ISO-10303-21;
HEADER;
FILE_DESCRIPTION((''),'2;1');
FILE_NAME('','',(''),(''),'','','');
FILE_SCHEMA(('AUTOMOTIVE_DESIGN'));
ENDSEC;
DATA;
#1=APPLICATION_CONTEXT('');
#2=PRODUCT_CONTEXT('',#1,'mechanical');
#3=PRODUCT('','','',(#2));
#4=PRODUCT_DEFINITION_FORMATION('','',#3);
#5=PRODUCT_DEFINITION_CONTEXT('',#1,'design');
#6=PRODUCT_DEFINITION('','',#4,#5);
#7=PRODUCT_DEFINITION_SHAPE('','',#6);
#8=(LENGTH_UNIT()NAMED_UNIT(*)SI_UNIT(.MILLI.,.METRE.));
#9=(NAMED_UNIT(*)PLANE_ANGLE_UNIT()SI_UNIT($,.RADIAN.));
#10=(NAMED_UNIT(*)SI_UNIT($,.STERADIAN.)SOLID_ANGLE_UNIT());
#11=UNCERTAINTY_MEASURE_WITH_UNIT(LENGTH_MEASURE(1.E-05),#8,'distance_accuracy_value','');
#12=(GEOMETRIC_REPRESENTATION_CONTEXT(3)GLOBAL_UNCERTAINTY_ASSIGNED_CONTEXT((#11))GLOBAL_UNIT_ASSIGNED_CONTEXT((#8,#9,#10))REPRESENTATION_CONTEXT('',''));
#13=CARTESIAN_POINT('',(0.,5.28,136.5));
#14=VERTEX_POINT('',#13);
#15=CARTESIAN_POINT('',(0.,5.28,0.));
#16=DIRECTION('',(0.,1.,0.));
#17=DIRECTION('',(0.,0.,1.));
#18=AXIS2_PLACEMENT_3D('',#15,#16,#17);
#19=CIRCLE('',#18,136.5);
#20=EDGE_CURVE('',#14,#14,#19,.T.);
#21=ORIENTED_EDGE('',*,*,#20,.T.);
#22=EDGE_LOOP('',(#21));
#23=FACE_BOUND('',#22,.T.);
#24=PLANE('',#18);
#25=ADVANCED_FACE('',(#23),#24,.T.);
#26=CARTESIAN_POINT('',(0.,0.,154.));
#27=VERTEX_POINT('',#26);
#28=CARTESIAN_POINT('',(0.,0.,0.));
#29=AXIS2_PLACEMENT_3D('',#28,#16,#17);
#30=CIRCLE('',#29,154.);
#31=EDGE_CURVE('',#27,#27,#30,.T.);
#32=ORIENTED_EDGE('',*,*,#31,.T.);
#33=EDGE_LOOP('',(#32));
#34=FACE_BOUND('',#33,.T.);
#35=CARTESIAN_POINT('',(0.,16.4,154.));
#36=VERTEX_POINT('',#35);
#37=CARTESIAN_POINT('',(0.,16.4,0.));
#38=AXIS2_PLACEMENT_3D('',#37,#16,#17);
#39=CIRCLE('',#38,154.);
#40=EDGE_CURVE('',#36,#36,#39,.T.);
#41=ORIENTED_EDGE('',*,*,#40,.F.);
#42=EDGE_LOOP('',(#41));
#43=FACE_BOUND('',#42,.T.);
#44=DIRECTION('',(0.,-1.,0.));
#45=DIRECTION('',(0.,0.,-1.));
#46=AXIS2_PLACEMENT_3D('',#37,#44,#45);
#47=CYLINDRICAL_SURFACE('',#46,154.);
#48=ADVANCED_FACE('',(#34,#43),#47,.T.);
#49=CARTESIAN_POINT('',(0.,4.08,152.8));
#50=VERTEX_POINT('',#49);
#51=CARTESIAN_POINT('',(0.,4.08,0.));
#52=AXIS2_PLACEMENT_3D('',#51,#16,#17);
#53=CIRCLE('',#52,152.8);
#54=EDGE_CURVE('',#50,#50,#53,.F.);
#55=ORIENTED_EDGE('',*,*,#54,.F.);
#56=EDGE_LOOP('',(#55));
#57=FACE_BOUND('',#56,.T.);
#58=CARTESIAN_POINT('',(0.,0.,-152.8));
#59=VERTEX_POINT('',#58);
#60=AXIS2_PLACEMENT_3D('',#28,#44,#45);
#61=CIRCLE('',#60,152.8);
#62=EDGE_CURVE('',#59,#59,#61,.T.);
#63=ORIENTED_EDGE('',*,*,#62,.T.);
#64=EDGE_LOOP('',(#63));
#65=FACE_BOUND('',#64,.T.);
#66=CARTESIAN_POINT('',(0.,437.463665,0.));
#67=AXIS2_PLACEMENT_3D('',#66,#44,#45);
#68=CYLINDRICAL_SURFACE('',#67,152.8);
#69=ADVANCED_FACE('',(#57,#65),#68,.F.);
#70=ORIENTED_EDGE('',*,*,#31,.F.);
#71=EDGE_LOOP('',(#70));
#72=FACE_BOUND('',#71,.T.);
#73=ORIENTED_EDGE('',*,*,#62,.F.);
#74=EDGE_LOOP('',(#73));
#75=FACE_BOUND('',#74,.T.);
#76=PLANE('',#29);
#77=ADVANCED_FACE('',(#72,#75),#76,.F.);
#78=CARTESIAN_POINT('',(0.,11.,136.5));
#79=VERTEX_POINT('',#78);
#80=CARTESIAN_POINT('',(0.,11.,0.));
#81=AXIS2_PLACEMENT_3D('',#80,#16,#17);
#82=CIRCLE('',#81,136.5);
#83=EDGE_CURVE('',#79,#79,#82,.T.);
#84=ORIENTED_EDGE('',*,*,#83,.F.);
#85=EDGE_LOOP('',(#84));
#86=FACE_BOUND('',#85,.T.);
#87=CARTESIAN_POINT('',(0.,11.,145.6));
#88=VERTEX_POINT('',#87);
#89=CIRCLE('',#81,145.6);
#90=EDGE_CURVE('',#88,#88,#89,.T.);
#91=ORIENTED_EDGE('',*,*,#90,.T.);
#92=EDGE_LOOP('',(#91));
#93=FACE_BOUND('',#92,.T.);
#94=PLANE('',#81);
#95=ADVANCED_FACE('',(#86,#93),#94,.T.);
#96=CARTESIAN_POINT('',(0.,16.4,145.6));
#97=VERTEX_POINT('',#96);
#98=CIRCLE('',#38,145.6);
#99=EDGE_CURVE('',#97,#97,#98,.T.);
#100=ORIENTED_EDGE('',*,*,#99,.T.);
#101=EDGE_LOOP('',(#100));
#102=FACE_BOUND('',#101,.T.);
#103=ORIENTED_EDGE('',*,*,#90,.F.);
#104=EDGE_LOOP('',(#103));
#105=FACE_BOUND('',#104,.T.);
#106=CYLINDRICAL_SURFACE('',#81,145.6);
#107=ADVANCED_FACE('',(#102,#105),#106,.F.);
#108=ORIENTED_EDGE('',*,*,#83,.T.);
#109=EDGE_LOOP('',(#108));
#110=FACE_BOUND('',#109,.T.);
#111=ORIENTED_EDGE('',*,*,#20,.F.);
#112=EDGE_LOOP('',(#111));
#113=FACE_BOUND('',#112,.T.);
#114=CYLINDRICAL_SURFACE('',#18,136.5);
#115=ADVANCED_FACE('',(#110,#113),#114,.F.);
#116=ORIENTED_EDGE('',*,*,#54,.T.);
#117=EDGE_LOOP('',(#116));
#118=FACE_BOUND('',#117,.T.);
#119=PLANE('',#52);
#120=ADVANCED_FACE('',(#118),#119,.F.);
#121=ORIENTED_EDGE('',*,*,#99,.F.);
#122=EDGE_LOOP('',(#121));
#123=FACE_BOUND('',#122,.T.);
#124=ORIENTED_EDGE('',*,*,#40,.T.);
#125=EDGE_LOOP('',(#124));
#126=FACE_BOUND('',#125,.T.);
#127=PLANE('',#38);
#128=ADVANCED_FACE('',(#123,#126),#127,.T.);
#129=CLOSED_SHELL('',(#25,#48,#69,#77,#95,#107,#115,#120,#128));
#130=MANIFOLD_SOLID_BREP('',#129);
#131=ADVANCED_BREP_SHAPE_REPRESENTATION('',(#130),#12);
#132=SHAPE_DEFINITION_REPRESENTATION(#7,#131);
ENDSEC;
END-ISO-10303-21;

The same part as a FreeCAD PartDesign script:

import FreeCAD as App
import Part
import Sketcher
Q = App.Units.Quantity

doc = App.newDocument("Part")
body = doc.addObject("PartDesign::Body", "Body")

sketch1 = body.newObject("Sketcher::SketchObject", "Sketch")
sketch1.AttachmentSupport = (doc.getObject("XZ_Plane"), [""])
sketch1.MapMode = "FlatFace"
sketch1.addGeometry(Part.Circle(App.Vector(0, 0, 0), App.Vector(0, 0, 1), 154), False)
sketch1.addConstraint(Sketcher.Constraint("Coincident", 0, 3, -1, 1))
sketch1.addConstraint(Sketcher.Constraint("Diameter", 0, Q("308 mm")))
pad1 = body.newObject("PartDesign::Pad", "Pad")
pad1.Profile = sketch1
pad1.Length = 16.4
pad1.Reversed = True

sketch2 = body.newObject("Sketcher::SketchObject", "Sketch001")
sketch2.AttachmentSupport = (doc.getObject("XZ_Plane"), [""])
sketch2.MapMode = "FlatFace"
sketch2.AttachmentOffset = App.Placement(App.Vector(0, 0, -16.4), App.Rotation())
sketch2.addGeometry(Part.Circle(App.Vector(0, 0, 0), App.Vector(0, 0, 1), 146), False)
sketch2.addConstraint(Sketcher.Constraint("Coincident", 0, 3, -1, 1))
sketch2.addConstraint(Sketcher.Constraint("Diameter", 0, Q("291.2 mm")))
pocket1 = body.newObject("PartDesign::Pocket", "Pocket")
pocket1.Profile = sketch2
pocket1.Length = 5.4
pocket1.Reversed = True

sketch3 = body.newObject("Sketcher::SketchObject", "Sketch002")
sketch3.AttachmentSupport = (doc.getObject("XZ_Plane"), [""])
sketch3.MapMode = "FlatFace"
sketch3.AttachmentOffset = App.Placement(App.Vector(0, 0, -11), App.Rotation())
sketch3.addGeometry(Part.Circle(App.Vector(0, 0, 0), App.Vector(0, 0, 1), 136), False)
sketch3.addConstraint(Sketcher.Constraint("Coincident", 0, 3, -1, 1))
sketch3.addConstraint(Sketcher.Constraint("Diameter", 0, Q("273 mm")))
pocket2 = body.newObject("PartDesign::Pocket", "Pocket001")
pocket2.Profile = sketch3
pocket2.Length = 5.72
pocket2.Reversed = True

sketch4 = body.newObject("Sketcher::SketchObject", "Sketch003")
sketch4.AttachmentSupport = (doc.getObject("XZ_Plane"), [""])
sketch4.MapMode = "FlatFace"
sketch4.addGeometry(Part.Circle(App.Vector(0, 0, 0), App.Vector(0, 0, 1), 153), False)
sketch4.addConstraint(Sketcher.Constraint("Coincident", 0, 3, -1, 1))
sketch4.addConstraint(Sketcher.Constraint("Diameter", 0, Q("305.6 mm")))
pocket3 = body.newObject("PartDesign::Pocket", "Pocket002")
pocket3.Profile = sketch4
pocket3.Length = 4.08

doc.recompute()
